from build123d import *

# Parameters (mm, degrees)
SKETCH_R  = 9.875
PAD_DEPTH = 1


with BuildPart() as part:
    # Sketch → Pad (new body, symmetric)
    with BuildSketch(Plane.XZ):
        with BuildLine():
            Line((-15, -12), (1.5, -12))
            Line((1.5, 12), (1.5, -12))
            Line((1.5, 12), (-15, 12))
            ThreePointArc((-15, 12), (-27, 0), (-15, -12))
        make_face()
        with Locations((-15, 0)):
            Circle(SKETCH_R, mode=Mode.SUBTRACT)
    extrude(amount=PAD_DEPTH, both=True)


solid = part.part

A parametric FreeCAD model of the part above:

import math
import FreeCAD as App
import Part
import Sketcher

doc = App.newDocument("Part")
body = doc.addObject("PartDesign::Body", "Body")

# Sketch on XZ plane
sketch1 = body.newObject("Sketcher::SketchObject", "Sketch")
sketch1.AttachmentSupport = (doc.getObject("XZ_Plane"), [""])
sketch1.MapMode = "FlatFace"
sketch1.addGeometry([
    Part.LineSegment(App.Vector(-15, -12, 0), App.Vector(2, -12, 0)),  # 0
    Part.LineSegment(App.Vector(2, -12, 0), App.Vector(2, 12, 0)),  # 1
    Part.LineSegment(App.Vector(2, 12, 0), App.Vector(-15, 12, 0)),  # 2
    Part.ArcOfCircle(Part.Circle(App.Vector(-15, 0, 0), App.Vector(0, 0, 1), 12), math.radians(90), math.radians(270)),  # 3
    Part.Circle(App.Vector(-15, 0, 0), App.Vector(0, 0, 1), 10),  # 4
], False)
sketch1.addConstraint([
    Sketcher.Constraint("Coincident", 0, 2, 1, 1),
    Sketcher.Constraint("Coincident", 1, 2, 2, 1),
    Sketcher.Constraint("Tangent", 2, 2, 3, 1),
    Sketcher.Constraint("Tangent", 3, 2, 0, 1),
    Sketcher.Constraint("Horizontal", 0),
    Sketcher.Constraint("Vertical", 1),
    Sketcher.Constraint("Horizontal", 2),
    Sketcher.Constraint("Coincident", 4, 3, 3, 3),
    Sketcher.Constraint("PointOnObject", 3, 3, -1),
    Sketcher.Constraint("Radius", 3, 12.0),
    Sketcher.Constraint("Diameter", 4, 19.75),
    Sketcher.Constraint("DistanceX", 0, 1, 0, 2, 16.5),
    Sketcher.Constraint("DistanceX", 3, 3, -1, 1, 15.0),
])
pad1 = body.newObject("PartDesign::Pad", "Pad")
pad1.Profile = sketch1
pad1.Length = 2
pad1.Midplane = True

doc.recompute()
